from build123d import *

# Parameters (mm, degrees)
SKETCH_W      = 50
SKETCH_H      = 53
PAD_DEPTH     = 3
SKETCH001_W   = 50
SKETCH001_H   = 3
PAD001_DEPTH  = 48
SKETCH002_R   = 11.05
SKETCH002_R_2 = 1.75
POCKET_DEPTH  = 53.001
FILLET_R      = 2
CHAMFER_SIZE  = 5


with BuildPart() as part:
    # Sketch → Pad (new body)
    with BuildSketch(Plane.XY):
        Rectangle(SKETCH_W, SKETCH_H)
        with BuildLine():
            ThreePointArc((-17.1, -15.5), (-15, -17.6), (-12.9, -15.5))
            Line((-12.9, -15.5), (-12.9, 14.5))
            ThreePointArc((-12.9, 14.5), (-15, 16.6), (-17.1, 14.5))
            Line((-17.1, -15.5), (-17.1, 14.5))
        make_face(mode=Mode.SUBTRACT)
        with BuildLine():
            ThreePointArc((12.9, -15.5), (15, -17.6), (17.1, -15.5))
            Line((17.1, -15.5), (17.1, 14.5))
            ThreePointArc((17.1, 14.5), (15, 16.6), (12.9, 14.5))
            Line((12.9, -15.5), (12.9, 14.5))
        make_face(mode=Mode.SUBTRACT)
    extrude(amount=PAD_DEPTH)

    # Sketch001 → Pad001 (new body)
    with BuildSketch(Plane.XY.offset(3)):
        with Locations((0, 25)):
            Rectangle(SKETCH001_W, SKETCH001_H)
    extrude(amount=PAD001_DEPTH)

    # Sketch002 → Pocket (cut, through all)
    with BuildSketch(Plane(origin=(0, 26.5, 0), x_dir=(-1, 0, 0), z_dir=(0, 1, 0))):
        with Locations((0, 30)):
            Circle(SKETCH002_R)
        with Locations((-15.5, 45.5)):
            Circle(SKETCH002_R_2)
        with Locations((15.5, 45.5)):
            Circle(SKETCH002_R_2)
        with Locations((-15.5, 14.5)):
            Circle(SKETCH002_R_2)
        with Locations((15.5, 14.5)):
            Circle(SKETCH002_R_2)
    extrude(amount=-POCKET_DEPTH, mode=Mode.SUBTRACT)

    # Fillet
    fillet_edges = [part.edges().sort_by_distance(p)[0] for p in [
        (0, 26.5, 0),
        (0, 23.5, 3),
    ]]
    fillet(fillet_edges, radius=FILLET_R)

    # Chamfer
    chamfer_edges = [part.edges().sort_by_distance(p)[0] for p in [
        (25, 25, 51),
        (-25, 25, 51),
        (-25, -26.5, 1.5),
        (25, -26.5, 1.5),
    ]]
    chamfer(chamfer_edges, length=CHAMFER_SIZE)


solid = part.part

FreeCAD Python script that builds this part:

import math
import FreeCAD as App
import Part
import Sketcher

V = App.Vector
Q = App.Units.Quantity


def edges_at(feature, points):
    """Names of the edges that pass closest to the given points."""
    edges = feature.Shape.Edges
    near = lambda p: min(range(len(edges)), key=lambda i: edges[i].distToShape(Part.Vertex(*p))[0])
    return sorted({f"Edge{near(p) + 1}" for p in points})


def add_polygon(sketch, points):
    """Adds a closed chain of lines whose ends are joined by coincident constraints."""
    first, n = sketch.GeometryCount, len(points)
    for a, b in zip(points, points[1:] + points[:1]):
        sketch.addGeometry(Part.LineSegment(App.Vector(*a, 0), App.Vector(*b, 0)), False)
    for i in range(n):
        sketch.addConstraint(Sketcher.Constraint("Coincident", first + i, 2, first + (i + 1) % n, 1))

doc = App.newDocument("Part")
body = doc.addObject("PartDesign::Body", "Body")

# Sketch on XY plane
sketch1 = body.newObject("Sketcher::SketchObject", "Sketch")
sketch1.AttachmentSupport = (doc.getObject("XY_Plane"), [""])
sketch1.MapMode = "FlatFace"
add_polygon(sketch1, [(-25, 26.5), (-25, -26.5), (25, -26.5), (25, 26.5)])  # lines 0-3
sketch1.addGeometry(Part.ArcOfCircle(Part.Circle(V(-15, -15.5, 0), V(0, 0, 1), 2.1), math.radians(180), math.radians(360)), False)  # 4
sketch1.addGeometry(Part.LineSegment(V(-17.1, -15.5, 0), V(-17.1, 14.5, 0)), False)  # 5
sketch1.addGeometry(Part.ArcOfCircle(Part.Circle(V(-15, 14.5, 0), V(0, 0, 1), 2.1), math.radians(0), math.radians(180)), False)  # 6
sketch1.addGeometry(Part.LineSegment(V(-12.9, 14.5, 0), V(-12.9, -15.5, 0)), False)  # 7
sketch1.addGeometry(Part.ArcOfCircle(Part.Circle(V(15, -15.5, 0), V(0, 0, 1), 2.1), math.radians(180), math.radians(360)), False)  # 8
sketch1.addGeometry(Part.LineSegment(V(12.9, -15.5, 0), V(12.9, 14.5, 0)), False)  # 9
sketch1.addGeometry(Part.ArcOfCircle(Part.Circle(V(15, 14.5, 0), V(0, 0, 1), 2.1), math.radians(0), math.radians(180)), False)  # 10
sketch1.addGeometry(Part.LineSegment(V(17.1, 14.5, 0), V(17.1, -15.5, 0)), False)  # 11
sketch1.addConstraint(Sketcher.Constraint("Tangent", 4, 1, 5, 1))
sketch1.addConstraint(Sketcher.Constraint("Tangent", 5, 2, 6, 2))
sketch1.addConstraint(Sketcher.Constraint("Tangent", 6, 1, 7, 1))
sketch1.addConstraint(Sketcher.Constraint("Tangent", 7, 2, 4, 2))
sketch1.addConstraint(Sketcher.Constraint("Tangent", 8, 1, 9, 1))
sketch1.addConstraint(Sketcher.Constraint("Tangent", 9, 2, 10, 2))
sketch1.addConstraint(Sketcher.Constraint("Tangent", 10, 1, 11, 1))
sketch1.addConstraint(Sketcher.Constraint("Tangent", 11, 2, 8, 2))
sketch1.addConstraint(Sketcher.Constraint("Vertical", 0))
sketch1.addConstraint(Sketcher.Constraint("Horizontal", 1))
sketch1.addConstraint(Sketcher.Constraint("Vertical", 2))
sketch1.addConstraint(Sketcher.Constraint("Horizontal", 3))
sketch1.addConstraint(Sketcher.Constraint("Vertical", 5))
sketch1.addConstraint(Sketcher.Constraint("Vertical", 7))
sketch1.addConstraint(Sketcher.Constraint("Vertical", 9))
sketch1.addConstraint(Sketcher.Constraint("Vertical", 11))
sketch1.addConstraint(Sketcher.Constraint("Equal", 6, 8))
sketch1.addConstraint(Sketcher.Constraint("Symmetric", 0, 2, 2, 2, -1, 1))
sketch1.addConstraint(Sketcher.Constraint("Symmetric", 4, 3, 8, 3, -2))
sketch1.addConstraint(Sketcher.Constraint("Horizontal", 6, 3, 10, 3))
sketch1.addConstraint(Sketcher.Constraint("Radius", 4, Q("2.1 mm")))
sketch1.addConstraint(Sketcher.Constraint("DistanceX", 1, 1, 1, 2, Q("50 mm")))
sketch1.addConstraint(Sketcher.Constraint("DistanceY", 0, 2, 0, 1, Q("53 mm")))
sketch1.addConstraint(Sketcher.Constraint("DistanceY", 5, 1, 5, 2, Q("30 mm")))
sketch1.addConstraint(Sketcher.Constraint("DistanceX", 4, 3, -1, 1, Q("15 mm")))
sketch1.addConstraint(Sketcher.Constraint("DistanceY", 0, 2, 4, 3, Q("11 mm")))
pad1 = body.newObject("PartDesign::Pad", "Pad")
pad1.Profile = sketch1
pad1.Length = 3

# Sketch on XY plane
sketch2 = body.newObject("Sketcher::SketchObject", "Sketch001")
sketch2.AttachmentSupport = (doc.getObject("XY_Plane"), [""])
sketch2.MapMode = "FlatFace"
sketch2.AttachmentOffset = App.Placement(V(0, 0, 3), App.Rotation())
add_polygon(sketch2, [(-25, 26.5), (-25, 23.5), (25, 23.5), (25, 26.5)])  # lines 0-3
sketch2.addConstraint(Sketcher.Constraint("Vertical", 0))
sketch2.addConstraint(Sketcher.Constraint("Horizontal", 1))
sketch2.addConstraint(Sketcher.Constraint("Vertical", 2))
sketch2.addConstraint(Sketcher.Constraint("Horizontal", 3))
sketch2.addConstraint(Sketcher.Constraint("DistanceX", 1, 1, 1, 2, Q("50 mm")))
sketch2.addConstraint(Sketcher.Constraint("DistanceY", 0, 2, 0, 1, Q("3 mm")))
sketch2.addConstraint(Sketcher.Constraint("DistanceX", 0, 2, -1, 1, Q("25 mm")))
sketch2.addConstraint(Sketcher.Constraint("DistanceY", -1, 1, 0, 2, Q("23.5 mm")))
pad2 = body.newObject("PartDesign::Pad", "Pad001")
pad2.Profile = sketch2
pad2.Length = 48

# Sketch on XZ plane
sketch3 = body.newObject("Sketcher::SketchObject", "Sketch002")
sketch3.AttachmentSupport = (doc.getObject("XZ_Plane"), [""])
sketch3.MapMode = "FlatFace"
sketch3.AttachmentOffset = App.Placement(V(0, 0, -26.5), App.Rotation())
sketch3.addGeometry(Part.Circle(V(0, 30, 0), V(0, 0, 1), 11.1), False)
sketch3.addGeometry(Part.Circle(V(15.5, 45.5, 0), V(0, 0, 1), 1.8), False)
sketch3.addGeometry(Part.Circle(V(-15.5, 45.5, 0), V(0, 0, 1), 1.8), False)
sketch3.addGeometry(Part.Circle(V(15.5, 14.5, 0), V(0, 0, 1), 1.8), False)
sketch3.addGeometry(Part.Circle(V(-15.5, 14.5, 0), V(0, 0, 1), 1.8), False)
sketch3.addConstraint(Sketcher.Constraint("Equal", 1, 2))
sketch3.addConstraint(Sketcher.Constraint("Equal", 2, 3))
sketch3.addConstraint(Sketcher.Constraint("Equal", 3, 4))
sketch3.addConstraint(Sketcher.Constraint("Symmetric", 1, 3, 2, 3, -2))
sketch3.addConstraint(Sketcher.Constraint("Symmetric", 3, 3, 4, 3, -2))
sketch3.addConstraint(Sketcher.Constraint("PointOnObject", 0, 3, -2))
sketch3.addConstraint(Sketcher.Constraint("Vertical", 1, 3, 3, 3))
sketch3.addConstraint(Sketcher.Constraint("Diameter", 0, Q("22.1 mm")))
sketch3.addConstraint(Sketcher.Constraint("Diameter", 1, Q("3.5 mm")))
sketch3.addConstraint(Sketcher.Constraint("DistanceY", -1, 1, 0, 3, Q("30 mm")))
sketch3.addConstraint(Sketcher.Constraint("DistanceX", 2, 3, 1, 3, Q("31 mm")))
sketch3.addConstraint(Sketcher.Constraint("DistanceY", 3, 3, 1, 3, Q("31 mm")))
sketch3.addConstraint(Sketcher.Constraint("DistanceY", -1, 1, 1, 3, Q("45.5 mm")))
pocket1 = body.newObject("PartDesign::Pocket", "Pocket")
pocket1.Profile = sketch3
pocket1.Type = "ThroughAll"
pocket1.Reversed = True
doc.recompute()

fillet = body.newObject("PartDesign::Fillet", "Fillet")
fillet.Base = (pocket1, edges_at(pocket1, [(0, 26.5, 0), (0, 23.5, 3)]))
fillet.Radius = 2
doc.recompute()

chamfer = body.newObject("PartDesign::Chamfer", "Chamfer")
chamfer.Base = (fillet, edges_at(fillet, [
    (25, 25, 51),
    (-25, 25, 51),
    (-25, -26.5, 1.5),
    (25, -26.5, 1.5),
]))
chamfer.Size = 5

doc.recompute()
